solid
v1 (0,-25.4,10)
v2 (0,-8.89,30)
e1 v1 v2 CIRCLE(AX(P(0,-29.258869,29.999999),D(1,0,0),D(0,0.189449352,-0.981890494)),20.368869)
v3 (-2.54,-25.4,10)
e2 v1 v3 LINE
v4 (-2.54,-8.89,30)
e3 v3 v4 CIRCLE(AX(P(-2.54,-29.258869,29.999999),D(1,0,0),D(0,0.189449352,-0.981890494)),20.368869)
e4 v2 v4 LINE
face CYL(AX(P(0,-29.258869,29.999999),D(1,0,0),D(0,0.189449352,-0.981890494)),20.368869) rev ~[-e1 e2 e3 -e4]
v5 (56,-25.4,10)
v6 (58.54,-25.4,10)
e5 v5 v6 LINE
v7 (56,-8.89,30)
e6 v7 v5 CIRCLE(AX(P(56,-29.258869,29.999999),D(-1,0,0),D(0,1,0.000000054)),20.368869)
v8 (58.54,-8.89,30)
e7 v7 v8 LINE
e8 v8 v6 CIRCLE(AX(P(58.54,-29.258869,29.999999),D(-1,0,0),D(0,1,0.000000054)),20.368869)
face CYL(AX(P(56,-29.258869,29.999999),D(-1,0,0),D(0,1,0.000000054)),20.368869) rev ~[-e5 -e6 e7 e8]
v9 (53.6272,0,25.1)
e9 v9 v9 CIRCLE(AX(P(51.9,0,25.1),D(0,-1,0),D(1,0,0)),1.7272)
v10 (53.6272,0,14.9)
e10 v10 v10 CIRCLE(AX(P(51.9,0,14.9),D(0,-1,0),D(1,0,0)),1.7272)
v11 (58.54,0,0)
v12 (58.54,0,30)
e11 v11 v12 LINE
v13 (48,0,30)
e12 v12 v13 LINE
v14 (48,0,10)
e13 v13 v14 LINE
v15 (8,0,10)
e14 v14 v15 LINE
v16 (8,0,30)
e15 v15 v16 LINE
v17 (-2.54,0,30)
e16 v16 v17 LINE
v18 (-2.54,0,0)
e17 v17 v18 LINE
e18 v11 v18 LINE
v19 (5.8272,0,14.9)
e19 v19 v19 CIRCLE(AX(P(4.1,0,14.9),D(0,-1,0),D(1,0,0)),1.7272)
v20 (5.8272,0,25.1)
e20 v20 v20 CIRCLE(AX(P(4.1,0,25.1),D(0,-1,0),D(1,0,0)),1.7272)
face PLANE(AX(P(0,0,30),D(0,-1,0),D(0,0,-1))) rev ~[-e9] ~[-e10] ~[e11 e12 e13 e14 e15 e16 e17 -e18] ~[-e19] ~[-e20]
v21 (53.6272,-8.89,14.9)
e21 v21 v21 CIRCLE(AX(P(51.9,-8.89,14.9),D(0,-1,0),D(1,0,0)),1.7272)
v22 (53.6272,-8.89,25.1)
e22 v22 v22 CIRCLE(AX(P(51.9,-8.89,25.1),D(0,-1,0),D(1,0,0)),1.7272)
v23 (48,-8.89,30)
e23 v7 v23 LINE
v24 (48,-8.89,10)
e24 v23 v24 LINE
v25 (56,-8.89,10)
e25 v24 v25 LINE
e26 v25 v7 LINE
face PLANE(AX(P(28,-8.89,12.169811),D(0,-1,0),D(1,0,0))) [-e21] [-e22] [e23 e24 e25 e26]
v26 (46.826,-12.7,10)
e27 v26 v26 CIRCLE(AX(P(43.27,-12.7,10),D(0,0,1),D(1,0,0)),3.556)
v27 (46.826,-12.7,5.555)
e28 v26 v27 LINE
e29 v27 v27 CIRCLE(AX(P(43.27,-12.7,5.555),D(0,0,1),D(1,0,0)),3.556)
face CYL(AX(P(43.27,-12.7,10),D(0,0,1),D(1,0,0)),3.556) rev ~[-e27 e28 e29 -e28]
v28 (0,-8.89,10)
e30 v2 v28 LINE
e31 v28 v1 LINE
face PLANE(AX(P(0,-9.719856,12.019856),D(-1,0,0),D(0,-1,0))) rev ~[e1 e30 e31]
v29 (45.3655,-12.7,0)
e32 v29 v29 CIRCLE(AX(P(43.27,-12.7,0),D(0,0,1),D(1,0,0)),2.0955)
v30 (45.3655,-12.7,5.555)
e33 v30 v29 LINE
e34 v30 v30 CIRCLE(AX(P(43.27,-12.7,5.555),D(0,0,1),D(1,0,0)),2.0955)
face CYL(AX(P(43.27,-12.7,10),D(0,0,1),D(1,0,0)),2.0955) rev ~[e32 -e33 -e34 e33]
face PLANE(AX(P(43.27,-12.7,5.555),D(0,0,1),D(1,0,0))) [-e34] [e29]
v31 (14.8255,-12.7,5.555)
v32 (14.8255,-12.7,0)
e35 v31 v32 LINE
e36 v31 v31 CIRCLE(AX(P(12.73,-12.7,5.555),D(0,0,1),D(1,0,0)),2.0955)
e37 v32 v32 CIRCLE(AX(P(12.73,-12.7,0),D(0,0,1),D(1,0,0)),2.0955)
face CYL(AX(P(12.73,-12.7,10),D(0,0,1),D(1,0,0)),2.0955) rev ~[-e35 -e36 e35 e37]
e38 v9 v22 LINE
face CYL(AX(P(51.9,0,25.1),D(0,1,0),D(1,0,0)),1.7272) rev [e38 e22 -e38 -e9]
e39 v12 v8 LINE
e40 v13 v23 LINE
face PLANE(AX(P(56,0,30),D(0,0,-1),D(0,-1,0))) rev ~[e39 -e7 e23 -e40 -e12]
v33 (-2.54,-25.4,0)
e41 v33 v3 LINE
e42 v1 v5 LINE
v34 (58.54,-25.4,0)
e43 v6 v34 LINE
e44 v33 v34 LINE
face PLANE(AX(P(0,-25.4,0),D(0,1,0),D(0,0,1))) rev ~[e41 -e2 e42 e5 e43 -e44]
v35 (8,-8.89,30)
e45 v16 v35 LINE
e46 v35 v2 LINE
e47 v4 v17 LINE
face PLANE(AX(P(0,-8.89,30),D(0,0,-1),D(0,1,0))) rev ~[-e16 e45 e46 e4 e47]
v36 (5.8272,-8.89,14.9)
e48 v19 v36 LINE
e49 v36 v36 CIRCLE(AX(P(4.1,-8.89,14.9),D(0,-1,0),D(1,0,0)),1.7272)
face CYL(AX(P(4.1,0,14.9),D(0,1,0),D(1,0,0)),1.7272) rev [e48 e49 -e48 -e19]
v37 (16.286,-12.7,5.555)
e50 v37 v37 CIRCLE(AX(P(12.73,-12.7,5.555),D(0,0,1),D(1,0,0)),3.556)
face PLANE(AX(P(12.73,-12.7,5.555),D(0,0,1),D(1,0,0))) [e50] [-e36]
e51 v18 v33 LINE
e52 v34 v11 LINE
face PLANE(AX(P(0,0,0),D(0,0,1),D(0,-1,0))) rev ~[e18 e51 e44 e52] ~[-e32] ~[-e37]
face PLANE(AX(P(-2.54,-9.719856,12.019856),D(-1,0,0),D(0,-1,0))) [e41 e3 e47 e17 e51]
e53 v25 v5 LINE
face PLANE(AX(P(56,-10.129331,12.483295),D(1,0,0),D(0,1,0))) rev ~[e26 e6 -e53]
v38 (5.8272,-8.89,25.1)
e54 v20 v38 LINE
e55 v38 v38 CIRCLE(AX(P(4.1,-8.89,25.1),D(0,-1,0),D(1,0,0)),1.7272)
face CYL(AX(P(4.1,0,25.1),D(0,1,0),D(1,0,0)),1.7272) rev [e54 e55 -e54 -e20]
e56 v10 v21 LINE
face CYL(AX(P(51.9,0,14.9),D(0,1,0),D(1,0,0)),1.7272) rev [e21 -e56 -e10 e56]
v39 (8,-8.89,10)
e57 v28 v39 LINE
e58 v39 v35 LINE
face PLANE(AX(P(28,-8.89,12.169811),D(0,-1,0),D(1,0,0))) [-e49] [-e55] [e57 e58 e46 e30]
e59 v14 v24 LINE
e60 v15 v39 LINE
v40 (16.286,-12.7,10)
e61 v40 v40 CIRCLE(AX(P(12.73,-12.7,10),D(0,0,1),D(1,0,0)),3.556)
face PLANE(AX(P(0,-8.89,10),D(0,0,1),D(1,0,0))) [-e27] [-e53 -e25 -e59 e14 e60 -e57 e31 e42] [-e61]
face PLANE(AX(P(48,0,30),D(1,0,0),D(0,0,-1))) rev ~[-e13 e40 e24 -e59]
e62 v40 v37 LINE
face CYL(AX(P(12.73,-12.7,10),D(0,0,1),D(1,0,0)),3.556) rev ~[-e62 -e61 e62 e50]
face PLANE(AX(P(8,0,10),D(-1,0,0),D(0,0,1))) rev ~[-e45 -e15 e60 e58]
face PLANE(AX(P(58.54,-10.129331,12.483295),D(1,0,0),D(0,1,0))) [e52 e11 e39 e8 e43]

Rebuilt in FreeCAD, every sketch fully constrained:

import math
import FreeCAD as App
import Part
import Sketcher
from FreeCAD import Vector
Q = App.Units.Quantity


def add_polygon(sketch, points):
    """Adds a closed chain of lines whose ends are joined by coincident constraints."""
    first, n = sketch.GeometryCount, len(points)
    for a, b in zip(points, points[1:] + points[:1]):
        sketch.addGeometry(Part.LineSegment(App.Vector(*a, 0), App.Vector(*b, 0)), False)
    for i in range(n):
        sketch.addConstraint(Sketcher.Constraint("Coincident", first + i, 2, first + (i + 1) % n, 1))

doc = App.newDocument("Part")
params = doc.addObject("Spreadsheet::Sheet", "Params")
for row, (alias, value) in enumerate([
    ("sketch1_diameter", "0.136 in"),
    ("pad1_length", "0.35 in"),
    ("pad2_length", "0.65 in"),
    ("sketch3_width", "1 in"),
    ("sketch3_width2", "0.35 in"),
    ("pad3_length", "0.1 in"),
    ("sketch4_width", "1 in"),
    ("sketch4_width2", "0.35 in"),
    ("pad4_length", "0.1 in"),
    ("sketch5_diameter", "0.165 in"),
    ("sketch6_diameter", "0.28 in"),
    ("pocket2_length", "0.175 in"),
], start=1):
    params.set(f"A{row}", alias)
    params.set(f"B{row}", "=" + value)
    params.setAlias(f"B{row}", alias)

body = doc.addObject("PartDesign::Body", "Body")

sketch1 = body.newObject("Sketcher::SketchObject", "Sketch")
sketch1.AttachmentSupport = (doc.getObject("XZ_Plane"), [""])
sketch1.MapMode = "FlatFace"
add_polygon(sketch1, [(0, 30), (0, 0), (56, 0), (56, 30), (48, 30), (48, 10), (8, 10), (8, 30)])
sketch1.addGeometry(Part.Circle(Vector(4.1, 14.9, 0), Vector(0, 0, 1), 1.7272), False)
sketch1.addGeometry(Part.Circle(Vector(51.9, 14.9, 0), Vector(0, 0, 1), 1.7272), False)
sketch1.addGeometry(Part.Circle(Vector(4.1, 25.1, 0), Vector(0, 0, 1), 1.7272), False)
sketch1.addGeometry(Part.Circle(Vector(51.9, 25.1, 0), Vector(0, 0, 1), 1.7272), False)
sketch1.addConstraint([
    Sketcher.Constraint("Vertical", 0),
    Sketcher.Constraint("Horizontal", 1),
    Sketcher.Constraint("Vertical", 2),
    Sketcher.Constraint("Horizontal", 3),
    Sketcher.Constraint("Vertical", 4),
    Sketcher.Constraint("Horizontal", 5),
    Sketcher.Constraint("Vertical", 6),
    Sketcher.Constraint("Horizontal", 7),
    Sketcher.Constraint("Coincident", 0, 2, -1, 1),
    Sketcher.Constraint("Equal", 8, 9),
    Sketcher.Constraint("Equal", 9, 10),
    Sketcher.Constraint("Equal", 10, 11),
    Sketcher.Constraint("Horizontal", 8, 3, 9, 3),
    Sketcher.Constraint("Horizontal", 10, 3, 11, 3),
    Sketcher.Constraint("Horizontal", 3, 2, 6, 2),
    Sketcher.Constraint("Vertical", 8, 3, 10, 3),
    Sketcher.Constraint("Vertical", 9, 3, 11, 3),
    Sketcher.Constraint("Equal", 3, 7),
    Sketcher.Constraint("Diameter", 8, Q("0.136 in")),
    Sketcher.Constraint("DistanceX", 1, 1, 1, 2, 56.0),
    Sketcher.Constraint("DistanceX", 3, 2, 3, 1, 8.0),
    Sketcher.Constraint("DistanceY", 0, 2, 0, 1, 30.0),
    Sketcher.Constraint("DistanceY", 4, 2, 4, 1, 20.0),
    Sketcher.Constraint("DistanceX", -1, 1, 8, 3, 4.1),
    Sketcher.Constraint("DistanceY", -1, 1, 8, 3, 14.9),
    Sketcher.Constraint("DistanceX", -1, 1, 9, 3, 51.9),
    Sketcher.Constraint("DistanceY", -1, 1, 10, 3, 25.1),
])
sketch1.setExpression("Constraints[26]", "Params.sketch1_diameter")
pad1 = body.newObject("PartDesign::Pad", "Pad")
pad1.Profile = sketch1
pad1.setExpression("Length", "Params.pad1_length")

sketch2 = body.newObject("Sketcher::SketchObject", "Sketch001")
sketch2.AttachmentSupport = (doc.getObject("XZ_Plane"), [""])
sketch2.MapMode = "FlatFace"
sketch2.AttachmentOffset = App.Placement(Vector(0, 0, 0.35 * 25.4), App.Rotation())
add_polygon(sketch2, [(0, 10), (0, 0), (56, 0), (56, 10)])
sketch2.addConstraint([
    Sketcher.Constraint("Vertical", 0),
    Sketcher.Constraint("Horizontal", 1),
    Sketcher.Constraint("Vertical", 2),
    Sketcher.Constraint("Horizontal", 3),
    Sketcher.Constraint("Coincident", 0, 2, -1, 1),
    Sketcher.Constraint("DistanceX", 1, 1, 1, 2, 56.0),
    Sketcher.Constraint("DistanceY", 0, 2, 0, 1, 10.0),
])
pad2 = body.newObject("PartDesign::Pad", "Pad001")
pad2.Profile = sketch2
pad2.setExpression("Length", "Params.pad2_length")

sketch3 = body.newObject("Sketcher::SketchObject", "Sketch002")
sketch3.AttachmentSupport = (doc.getObject("YZ_Plane"), [""])
sketch3.MapMode = "FlatFace"
sketch3.AttachmentOffset = App.Placement(Vector(0, 0, 56), App.Rotation())
sketch3.addGeometry([
    Part.LineSegment(Vector(0, 30, 0), Vector(-8.89, 30, 0)),
    Part.ArcOfCircle(Part.Circle(Vector(-29.258869, 29.999999, 0), Vector(0, 0, 1), 20.368869), math.radians(-79.079349), math.radians(0.000003)),
    Part.LineSegment(Vector(-25.4, 10, 0), Vector(-25.4, 0, 0)),
    Part.LineSegment(Vector(-25.4, 0, 0), Vector(0, 0, 0)),
    Part.LineSegment(Vector(0, 0, 0), Vector(0, 30, 0)),
], False)
sketch3.addConstraint([
    Sketcher.Constraint("Coincident", 0, 2, 1, 2),
    Sketcher.Constraint("Coincident", 1, 1, 2, 1),
    Sketcher.Constraint("Coincident", 2, 2, 3, 1),
    Sketcher.Constraint("Coincident", 3, 2, 4, 1),
    Sketcher.Constraint("Coincident", 4, 2, 0, 1),
    Sketcher.Constraint("Horizontal", 0),
    Sketcher.Constraint("Vertical", 2),
    Sketcher.Constraint("Horizontal", 3),
    Sketcher.Constraint("Vertical", 4),
    Sketcher.Constraint("Coincident", 3, 2, -1, 1),
    Sketcher.Constraint("Horizontal", 1, 3, 0, 2),
    Sketcher.Constraint("DistanceX", 3, 1, 3, 2, Q("1 in")),
    Sketcher.Constraint("DistanceX", 0, 2, 0, 1, Q("0.35 in")),
    Sketcher.Constraint("Radius", 1, 20.368869),
    Sketcher.Constraint("DistanceY", 2, 2, 2, 1, 10.0),
])
sketch3.setExpression("Constraints[11]", "Params.sketch3_width")
sketch3.setExpression("Constraints[12]", "Params.sketch3_width2")
pad3 = body.newObject("PartDesign::Pad", "Pad002")
pad3.Profile = sketch3
pad3.setExpression("Length", "Params.pad3_length")

sketch4 = body.newObject("Sketcher::SketchObject", "Sketch003")
sketch4.AttachmentSupport = (doc.getObject("YZ_Plane"), [""])
sketch4.MapMode = "FlatFace"
sketch4.addGeometry([
    Part.LineSegment(Vector(-8.89, 30, 0), Vector(0, 30, 0)),
    Part.LineSegment(Vector(0, 30, 0), Vector(0, 0, 0)),
    Part.LineSegment(Vector(0, 0, 0), Vector(-25.4, 0, 0)),
    Part.LineSegment(Vector(-25.4, 0, 0), Vector(-25.4, 10, 0)),
    Part.ArcOfCircle(Part.Circle(Vector(-29.258869, 29.999999, 0), Vector(0, 0, 1), 20.368869), math.radians(-79.079349), math.radians(0.000003)),
], False)
sketch4.addConstraint([
    Sketcher.Constraint("Coincident", 0, 2, 1, 1),
    Sketcher.Constraint("Coincident", 1, 2, 2, 1),
    Sketcher.Constraint("Coincident", 2, 2, 3, 1),
    Sketcher.Constraint("Coincident", 3, 2, 4, 1),
    Sketcher.Constraint("Coincident", 4, 2, 0, 1),
    Sketcher.Constraint("Horizontal", 0),
    Sketcher.Constraint("Vertical", 1),
    Sketcher.Constraint("Horizontal", 2),
    Sketcher.Constraint("Vertical", 3),
    Sketcher.Constraint("Coincident", 1, 2, -1, 1),
    Sketcher.Constraint("Horizontal", 4, 3, 0, 2),
    Sketcher.Constraint("DistanceX", 2, 2, 2, 1, Q("1 in")),
    Sketcher.Constraint("DistanceX", 0, 1, 0, 2, Q("0.35 in")),
    Sketcher.Constraint("Radius", 4, 20.368869),
    Sketcher.Constraint("DistanceY", 1, 2, 1, 1, 30.0),
])
sketch4.setExpression("Constraints[11]", "Params.sketch4_width")
sketch4.setExpression("Constraints[12]", "Params.sketch4_width2")
pad4 = body.newObject("PartDesign::Pad", "Pad003")
pad4.Profile = sketch4
pad4.setExpression("Length", "Params.pad4_length")
pad4.Reversed = True

sketch5 = body.newObject("Sketcher::SketchObject", "Sketch004")
sketch5.AttachmentSupport = (doc.getObject("XY_Plane"), [""])
sketch5.MapMode = "FlatFace"
sketch5.AttachmentOffset = App.Placement(Vector(0, 0, 10), App.Rotation())
sketch5.addGeometry([
    Part.Circle(Vector(12.73, -12.7, 0), Vector(0, 0, 1), 2.0955),
    Part.Circle(Vector(43.27, -12.7, 0), Vector(0, 0, 1), 2.0955),
], False)
sketch5.addConstraint([
    Sketcher.Constraint("Equal", 0, 1),
    Sketcher.Constraint("Horizontal", 0, 3, 1, 3),
    Sketcher.Constraint("Diameter", 0, Q("0.165 in")),
    Sketcher.Constraint("DistanceY", 0, 3, -1, 1, Q("0.5 in")),
    Sketcher.Constraint("DistanceX", -1, 1, 0, 3, 12.73),
    Sketcher.Constraint("DistanceX", -1, 1, 1, 3, 43.27),
])
sketch5.setExpression("Constraints[2]", "Params.sketch5_diameter")
pocket1 = body.newObject("PartDesign::Pocket", "Pocket")
pocket1.Profile = sketch5
pocket1.Type = "ThroughAll"

sketch6 = body.newObject("Sketcher::SketchObject", "Sketch005")
sketch6.AttachmentSupport = (doc.getObject("XY_Plane"), [""])
sketch6.MapMode = "FlatFace"
sketch6.AttachmentOffset = App.Placement(Vector(0, 0, 10), App.Rotation())
sketch6.addGeometry([
    Part.Circle(Vector(12.73, -12.7, 0), Vector(0, 0, 1), 3.556),
    Part.Circle(Vector(43.27, -12.7, 0), Vector(0, 0, 1), 3.556),
], False)
sketch6.addConstraint([
    Sketcher.Constraint("Equal", 0, 1),
    Sketcher.Constraint("Horizontal", 0, 3, 1, 3),
    Sketcher.Constraint("Diameter", 0, Q("0.28 in")),
    Sketcher.Constraint("DistanceY", 0, 3, -1, 1, Q("0.5 in")),
    Sketcher.Constraint("DistanceX", -1, 1, 0, 3, 12.73),
    Sketcher.Constraint("DistanceX", -1, 1, 1, 3, 43.27),
])
sketch6.setExpression("Constraints[2]", "Params.sketch6_diameter")
pocket2 = body.newObject("PartDesign::Pocket", "Pocket001")
pocket2.Profile = sketch6
pocket2.setExpression("Length", "Params.pocket2_length")

doc.recompute()
